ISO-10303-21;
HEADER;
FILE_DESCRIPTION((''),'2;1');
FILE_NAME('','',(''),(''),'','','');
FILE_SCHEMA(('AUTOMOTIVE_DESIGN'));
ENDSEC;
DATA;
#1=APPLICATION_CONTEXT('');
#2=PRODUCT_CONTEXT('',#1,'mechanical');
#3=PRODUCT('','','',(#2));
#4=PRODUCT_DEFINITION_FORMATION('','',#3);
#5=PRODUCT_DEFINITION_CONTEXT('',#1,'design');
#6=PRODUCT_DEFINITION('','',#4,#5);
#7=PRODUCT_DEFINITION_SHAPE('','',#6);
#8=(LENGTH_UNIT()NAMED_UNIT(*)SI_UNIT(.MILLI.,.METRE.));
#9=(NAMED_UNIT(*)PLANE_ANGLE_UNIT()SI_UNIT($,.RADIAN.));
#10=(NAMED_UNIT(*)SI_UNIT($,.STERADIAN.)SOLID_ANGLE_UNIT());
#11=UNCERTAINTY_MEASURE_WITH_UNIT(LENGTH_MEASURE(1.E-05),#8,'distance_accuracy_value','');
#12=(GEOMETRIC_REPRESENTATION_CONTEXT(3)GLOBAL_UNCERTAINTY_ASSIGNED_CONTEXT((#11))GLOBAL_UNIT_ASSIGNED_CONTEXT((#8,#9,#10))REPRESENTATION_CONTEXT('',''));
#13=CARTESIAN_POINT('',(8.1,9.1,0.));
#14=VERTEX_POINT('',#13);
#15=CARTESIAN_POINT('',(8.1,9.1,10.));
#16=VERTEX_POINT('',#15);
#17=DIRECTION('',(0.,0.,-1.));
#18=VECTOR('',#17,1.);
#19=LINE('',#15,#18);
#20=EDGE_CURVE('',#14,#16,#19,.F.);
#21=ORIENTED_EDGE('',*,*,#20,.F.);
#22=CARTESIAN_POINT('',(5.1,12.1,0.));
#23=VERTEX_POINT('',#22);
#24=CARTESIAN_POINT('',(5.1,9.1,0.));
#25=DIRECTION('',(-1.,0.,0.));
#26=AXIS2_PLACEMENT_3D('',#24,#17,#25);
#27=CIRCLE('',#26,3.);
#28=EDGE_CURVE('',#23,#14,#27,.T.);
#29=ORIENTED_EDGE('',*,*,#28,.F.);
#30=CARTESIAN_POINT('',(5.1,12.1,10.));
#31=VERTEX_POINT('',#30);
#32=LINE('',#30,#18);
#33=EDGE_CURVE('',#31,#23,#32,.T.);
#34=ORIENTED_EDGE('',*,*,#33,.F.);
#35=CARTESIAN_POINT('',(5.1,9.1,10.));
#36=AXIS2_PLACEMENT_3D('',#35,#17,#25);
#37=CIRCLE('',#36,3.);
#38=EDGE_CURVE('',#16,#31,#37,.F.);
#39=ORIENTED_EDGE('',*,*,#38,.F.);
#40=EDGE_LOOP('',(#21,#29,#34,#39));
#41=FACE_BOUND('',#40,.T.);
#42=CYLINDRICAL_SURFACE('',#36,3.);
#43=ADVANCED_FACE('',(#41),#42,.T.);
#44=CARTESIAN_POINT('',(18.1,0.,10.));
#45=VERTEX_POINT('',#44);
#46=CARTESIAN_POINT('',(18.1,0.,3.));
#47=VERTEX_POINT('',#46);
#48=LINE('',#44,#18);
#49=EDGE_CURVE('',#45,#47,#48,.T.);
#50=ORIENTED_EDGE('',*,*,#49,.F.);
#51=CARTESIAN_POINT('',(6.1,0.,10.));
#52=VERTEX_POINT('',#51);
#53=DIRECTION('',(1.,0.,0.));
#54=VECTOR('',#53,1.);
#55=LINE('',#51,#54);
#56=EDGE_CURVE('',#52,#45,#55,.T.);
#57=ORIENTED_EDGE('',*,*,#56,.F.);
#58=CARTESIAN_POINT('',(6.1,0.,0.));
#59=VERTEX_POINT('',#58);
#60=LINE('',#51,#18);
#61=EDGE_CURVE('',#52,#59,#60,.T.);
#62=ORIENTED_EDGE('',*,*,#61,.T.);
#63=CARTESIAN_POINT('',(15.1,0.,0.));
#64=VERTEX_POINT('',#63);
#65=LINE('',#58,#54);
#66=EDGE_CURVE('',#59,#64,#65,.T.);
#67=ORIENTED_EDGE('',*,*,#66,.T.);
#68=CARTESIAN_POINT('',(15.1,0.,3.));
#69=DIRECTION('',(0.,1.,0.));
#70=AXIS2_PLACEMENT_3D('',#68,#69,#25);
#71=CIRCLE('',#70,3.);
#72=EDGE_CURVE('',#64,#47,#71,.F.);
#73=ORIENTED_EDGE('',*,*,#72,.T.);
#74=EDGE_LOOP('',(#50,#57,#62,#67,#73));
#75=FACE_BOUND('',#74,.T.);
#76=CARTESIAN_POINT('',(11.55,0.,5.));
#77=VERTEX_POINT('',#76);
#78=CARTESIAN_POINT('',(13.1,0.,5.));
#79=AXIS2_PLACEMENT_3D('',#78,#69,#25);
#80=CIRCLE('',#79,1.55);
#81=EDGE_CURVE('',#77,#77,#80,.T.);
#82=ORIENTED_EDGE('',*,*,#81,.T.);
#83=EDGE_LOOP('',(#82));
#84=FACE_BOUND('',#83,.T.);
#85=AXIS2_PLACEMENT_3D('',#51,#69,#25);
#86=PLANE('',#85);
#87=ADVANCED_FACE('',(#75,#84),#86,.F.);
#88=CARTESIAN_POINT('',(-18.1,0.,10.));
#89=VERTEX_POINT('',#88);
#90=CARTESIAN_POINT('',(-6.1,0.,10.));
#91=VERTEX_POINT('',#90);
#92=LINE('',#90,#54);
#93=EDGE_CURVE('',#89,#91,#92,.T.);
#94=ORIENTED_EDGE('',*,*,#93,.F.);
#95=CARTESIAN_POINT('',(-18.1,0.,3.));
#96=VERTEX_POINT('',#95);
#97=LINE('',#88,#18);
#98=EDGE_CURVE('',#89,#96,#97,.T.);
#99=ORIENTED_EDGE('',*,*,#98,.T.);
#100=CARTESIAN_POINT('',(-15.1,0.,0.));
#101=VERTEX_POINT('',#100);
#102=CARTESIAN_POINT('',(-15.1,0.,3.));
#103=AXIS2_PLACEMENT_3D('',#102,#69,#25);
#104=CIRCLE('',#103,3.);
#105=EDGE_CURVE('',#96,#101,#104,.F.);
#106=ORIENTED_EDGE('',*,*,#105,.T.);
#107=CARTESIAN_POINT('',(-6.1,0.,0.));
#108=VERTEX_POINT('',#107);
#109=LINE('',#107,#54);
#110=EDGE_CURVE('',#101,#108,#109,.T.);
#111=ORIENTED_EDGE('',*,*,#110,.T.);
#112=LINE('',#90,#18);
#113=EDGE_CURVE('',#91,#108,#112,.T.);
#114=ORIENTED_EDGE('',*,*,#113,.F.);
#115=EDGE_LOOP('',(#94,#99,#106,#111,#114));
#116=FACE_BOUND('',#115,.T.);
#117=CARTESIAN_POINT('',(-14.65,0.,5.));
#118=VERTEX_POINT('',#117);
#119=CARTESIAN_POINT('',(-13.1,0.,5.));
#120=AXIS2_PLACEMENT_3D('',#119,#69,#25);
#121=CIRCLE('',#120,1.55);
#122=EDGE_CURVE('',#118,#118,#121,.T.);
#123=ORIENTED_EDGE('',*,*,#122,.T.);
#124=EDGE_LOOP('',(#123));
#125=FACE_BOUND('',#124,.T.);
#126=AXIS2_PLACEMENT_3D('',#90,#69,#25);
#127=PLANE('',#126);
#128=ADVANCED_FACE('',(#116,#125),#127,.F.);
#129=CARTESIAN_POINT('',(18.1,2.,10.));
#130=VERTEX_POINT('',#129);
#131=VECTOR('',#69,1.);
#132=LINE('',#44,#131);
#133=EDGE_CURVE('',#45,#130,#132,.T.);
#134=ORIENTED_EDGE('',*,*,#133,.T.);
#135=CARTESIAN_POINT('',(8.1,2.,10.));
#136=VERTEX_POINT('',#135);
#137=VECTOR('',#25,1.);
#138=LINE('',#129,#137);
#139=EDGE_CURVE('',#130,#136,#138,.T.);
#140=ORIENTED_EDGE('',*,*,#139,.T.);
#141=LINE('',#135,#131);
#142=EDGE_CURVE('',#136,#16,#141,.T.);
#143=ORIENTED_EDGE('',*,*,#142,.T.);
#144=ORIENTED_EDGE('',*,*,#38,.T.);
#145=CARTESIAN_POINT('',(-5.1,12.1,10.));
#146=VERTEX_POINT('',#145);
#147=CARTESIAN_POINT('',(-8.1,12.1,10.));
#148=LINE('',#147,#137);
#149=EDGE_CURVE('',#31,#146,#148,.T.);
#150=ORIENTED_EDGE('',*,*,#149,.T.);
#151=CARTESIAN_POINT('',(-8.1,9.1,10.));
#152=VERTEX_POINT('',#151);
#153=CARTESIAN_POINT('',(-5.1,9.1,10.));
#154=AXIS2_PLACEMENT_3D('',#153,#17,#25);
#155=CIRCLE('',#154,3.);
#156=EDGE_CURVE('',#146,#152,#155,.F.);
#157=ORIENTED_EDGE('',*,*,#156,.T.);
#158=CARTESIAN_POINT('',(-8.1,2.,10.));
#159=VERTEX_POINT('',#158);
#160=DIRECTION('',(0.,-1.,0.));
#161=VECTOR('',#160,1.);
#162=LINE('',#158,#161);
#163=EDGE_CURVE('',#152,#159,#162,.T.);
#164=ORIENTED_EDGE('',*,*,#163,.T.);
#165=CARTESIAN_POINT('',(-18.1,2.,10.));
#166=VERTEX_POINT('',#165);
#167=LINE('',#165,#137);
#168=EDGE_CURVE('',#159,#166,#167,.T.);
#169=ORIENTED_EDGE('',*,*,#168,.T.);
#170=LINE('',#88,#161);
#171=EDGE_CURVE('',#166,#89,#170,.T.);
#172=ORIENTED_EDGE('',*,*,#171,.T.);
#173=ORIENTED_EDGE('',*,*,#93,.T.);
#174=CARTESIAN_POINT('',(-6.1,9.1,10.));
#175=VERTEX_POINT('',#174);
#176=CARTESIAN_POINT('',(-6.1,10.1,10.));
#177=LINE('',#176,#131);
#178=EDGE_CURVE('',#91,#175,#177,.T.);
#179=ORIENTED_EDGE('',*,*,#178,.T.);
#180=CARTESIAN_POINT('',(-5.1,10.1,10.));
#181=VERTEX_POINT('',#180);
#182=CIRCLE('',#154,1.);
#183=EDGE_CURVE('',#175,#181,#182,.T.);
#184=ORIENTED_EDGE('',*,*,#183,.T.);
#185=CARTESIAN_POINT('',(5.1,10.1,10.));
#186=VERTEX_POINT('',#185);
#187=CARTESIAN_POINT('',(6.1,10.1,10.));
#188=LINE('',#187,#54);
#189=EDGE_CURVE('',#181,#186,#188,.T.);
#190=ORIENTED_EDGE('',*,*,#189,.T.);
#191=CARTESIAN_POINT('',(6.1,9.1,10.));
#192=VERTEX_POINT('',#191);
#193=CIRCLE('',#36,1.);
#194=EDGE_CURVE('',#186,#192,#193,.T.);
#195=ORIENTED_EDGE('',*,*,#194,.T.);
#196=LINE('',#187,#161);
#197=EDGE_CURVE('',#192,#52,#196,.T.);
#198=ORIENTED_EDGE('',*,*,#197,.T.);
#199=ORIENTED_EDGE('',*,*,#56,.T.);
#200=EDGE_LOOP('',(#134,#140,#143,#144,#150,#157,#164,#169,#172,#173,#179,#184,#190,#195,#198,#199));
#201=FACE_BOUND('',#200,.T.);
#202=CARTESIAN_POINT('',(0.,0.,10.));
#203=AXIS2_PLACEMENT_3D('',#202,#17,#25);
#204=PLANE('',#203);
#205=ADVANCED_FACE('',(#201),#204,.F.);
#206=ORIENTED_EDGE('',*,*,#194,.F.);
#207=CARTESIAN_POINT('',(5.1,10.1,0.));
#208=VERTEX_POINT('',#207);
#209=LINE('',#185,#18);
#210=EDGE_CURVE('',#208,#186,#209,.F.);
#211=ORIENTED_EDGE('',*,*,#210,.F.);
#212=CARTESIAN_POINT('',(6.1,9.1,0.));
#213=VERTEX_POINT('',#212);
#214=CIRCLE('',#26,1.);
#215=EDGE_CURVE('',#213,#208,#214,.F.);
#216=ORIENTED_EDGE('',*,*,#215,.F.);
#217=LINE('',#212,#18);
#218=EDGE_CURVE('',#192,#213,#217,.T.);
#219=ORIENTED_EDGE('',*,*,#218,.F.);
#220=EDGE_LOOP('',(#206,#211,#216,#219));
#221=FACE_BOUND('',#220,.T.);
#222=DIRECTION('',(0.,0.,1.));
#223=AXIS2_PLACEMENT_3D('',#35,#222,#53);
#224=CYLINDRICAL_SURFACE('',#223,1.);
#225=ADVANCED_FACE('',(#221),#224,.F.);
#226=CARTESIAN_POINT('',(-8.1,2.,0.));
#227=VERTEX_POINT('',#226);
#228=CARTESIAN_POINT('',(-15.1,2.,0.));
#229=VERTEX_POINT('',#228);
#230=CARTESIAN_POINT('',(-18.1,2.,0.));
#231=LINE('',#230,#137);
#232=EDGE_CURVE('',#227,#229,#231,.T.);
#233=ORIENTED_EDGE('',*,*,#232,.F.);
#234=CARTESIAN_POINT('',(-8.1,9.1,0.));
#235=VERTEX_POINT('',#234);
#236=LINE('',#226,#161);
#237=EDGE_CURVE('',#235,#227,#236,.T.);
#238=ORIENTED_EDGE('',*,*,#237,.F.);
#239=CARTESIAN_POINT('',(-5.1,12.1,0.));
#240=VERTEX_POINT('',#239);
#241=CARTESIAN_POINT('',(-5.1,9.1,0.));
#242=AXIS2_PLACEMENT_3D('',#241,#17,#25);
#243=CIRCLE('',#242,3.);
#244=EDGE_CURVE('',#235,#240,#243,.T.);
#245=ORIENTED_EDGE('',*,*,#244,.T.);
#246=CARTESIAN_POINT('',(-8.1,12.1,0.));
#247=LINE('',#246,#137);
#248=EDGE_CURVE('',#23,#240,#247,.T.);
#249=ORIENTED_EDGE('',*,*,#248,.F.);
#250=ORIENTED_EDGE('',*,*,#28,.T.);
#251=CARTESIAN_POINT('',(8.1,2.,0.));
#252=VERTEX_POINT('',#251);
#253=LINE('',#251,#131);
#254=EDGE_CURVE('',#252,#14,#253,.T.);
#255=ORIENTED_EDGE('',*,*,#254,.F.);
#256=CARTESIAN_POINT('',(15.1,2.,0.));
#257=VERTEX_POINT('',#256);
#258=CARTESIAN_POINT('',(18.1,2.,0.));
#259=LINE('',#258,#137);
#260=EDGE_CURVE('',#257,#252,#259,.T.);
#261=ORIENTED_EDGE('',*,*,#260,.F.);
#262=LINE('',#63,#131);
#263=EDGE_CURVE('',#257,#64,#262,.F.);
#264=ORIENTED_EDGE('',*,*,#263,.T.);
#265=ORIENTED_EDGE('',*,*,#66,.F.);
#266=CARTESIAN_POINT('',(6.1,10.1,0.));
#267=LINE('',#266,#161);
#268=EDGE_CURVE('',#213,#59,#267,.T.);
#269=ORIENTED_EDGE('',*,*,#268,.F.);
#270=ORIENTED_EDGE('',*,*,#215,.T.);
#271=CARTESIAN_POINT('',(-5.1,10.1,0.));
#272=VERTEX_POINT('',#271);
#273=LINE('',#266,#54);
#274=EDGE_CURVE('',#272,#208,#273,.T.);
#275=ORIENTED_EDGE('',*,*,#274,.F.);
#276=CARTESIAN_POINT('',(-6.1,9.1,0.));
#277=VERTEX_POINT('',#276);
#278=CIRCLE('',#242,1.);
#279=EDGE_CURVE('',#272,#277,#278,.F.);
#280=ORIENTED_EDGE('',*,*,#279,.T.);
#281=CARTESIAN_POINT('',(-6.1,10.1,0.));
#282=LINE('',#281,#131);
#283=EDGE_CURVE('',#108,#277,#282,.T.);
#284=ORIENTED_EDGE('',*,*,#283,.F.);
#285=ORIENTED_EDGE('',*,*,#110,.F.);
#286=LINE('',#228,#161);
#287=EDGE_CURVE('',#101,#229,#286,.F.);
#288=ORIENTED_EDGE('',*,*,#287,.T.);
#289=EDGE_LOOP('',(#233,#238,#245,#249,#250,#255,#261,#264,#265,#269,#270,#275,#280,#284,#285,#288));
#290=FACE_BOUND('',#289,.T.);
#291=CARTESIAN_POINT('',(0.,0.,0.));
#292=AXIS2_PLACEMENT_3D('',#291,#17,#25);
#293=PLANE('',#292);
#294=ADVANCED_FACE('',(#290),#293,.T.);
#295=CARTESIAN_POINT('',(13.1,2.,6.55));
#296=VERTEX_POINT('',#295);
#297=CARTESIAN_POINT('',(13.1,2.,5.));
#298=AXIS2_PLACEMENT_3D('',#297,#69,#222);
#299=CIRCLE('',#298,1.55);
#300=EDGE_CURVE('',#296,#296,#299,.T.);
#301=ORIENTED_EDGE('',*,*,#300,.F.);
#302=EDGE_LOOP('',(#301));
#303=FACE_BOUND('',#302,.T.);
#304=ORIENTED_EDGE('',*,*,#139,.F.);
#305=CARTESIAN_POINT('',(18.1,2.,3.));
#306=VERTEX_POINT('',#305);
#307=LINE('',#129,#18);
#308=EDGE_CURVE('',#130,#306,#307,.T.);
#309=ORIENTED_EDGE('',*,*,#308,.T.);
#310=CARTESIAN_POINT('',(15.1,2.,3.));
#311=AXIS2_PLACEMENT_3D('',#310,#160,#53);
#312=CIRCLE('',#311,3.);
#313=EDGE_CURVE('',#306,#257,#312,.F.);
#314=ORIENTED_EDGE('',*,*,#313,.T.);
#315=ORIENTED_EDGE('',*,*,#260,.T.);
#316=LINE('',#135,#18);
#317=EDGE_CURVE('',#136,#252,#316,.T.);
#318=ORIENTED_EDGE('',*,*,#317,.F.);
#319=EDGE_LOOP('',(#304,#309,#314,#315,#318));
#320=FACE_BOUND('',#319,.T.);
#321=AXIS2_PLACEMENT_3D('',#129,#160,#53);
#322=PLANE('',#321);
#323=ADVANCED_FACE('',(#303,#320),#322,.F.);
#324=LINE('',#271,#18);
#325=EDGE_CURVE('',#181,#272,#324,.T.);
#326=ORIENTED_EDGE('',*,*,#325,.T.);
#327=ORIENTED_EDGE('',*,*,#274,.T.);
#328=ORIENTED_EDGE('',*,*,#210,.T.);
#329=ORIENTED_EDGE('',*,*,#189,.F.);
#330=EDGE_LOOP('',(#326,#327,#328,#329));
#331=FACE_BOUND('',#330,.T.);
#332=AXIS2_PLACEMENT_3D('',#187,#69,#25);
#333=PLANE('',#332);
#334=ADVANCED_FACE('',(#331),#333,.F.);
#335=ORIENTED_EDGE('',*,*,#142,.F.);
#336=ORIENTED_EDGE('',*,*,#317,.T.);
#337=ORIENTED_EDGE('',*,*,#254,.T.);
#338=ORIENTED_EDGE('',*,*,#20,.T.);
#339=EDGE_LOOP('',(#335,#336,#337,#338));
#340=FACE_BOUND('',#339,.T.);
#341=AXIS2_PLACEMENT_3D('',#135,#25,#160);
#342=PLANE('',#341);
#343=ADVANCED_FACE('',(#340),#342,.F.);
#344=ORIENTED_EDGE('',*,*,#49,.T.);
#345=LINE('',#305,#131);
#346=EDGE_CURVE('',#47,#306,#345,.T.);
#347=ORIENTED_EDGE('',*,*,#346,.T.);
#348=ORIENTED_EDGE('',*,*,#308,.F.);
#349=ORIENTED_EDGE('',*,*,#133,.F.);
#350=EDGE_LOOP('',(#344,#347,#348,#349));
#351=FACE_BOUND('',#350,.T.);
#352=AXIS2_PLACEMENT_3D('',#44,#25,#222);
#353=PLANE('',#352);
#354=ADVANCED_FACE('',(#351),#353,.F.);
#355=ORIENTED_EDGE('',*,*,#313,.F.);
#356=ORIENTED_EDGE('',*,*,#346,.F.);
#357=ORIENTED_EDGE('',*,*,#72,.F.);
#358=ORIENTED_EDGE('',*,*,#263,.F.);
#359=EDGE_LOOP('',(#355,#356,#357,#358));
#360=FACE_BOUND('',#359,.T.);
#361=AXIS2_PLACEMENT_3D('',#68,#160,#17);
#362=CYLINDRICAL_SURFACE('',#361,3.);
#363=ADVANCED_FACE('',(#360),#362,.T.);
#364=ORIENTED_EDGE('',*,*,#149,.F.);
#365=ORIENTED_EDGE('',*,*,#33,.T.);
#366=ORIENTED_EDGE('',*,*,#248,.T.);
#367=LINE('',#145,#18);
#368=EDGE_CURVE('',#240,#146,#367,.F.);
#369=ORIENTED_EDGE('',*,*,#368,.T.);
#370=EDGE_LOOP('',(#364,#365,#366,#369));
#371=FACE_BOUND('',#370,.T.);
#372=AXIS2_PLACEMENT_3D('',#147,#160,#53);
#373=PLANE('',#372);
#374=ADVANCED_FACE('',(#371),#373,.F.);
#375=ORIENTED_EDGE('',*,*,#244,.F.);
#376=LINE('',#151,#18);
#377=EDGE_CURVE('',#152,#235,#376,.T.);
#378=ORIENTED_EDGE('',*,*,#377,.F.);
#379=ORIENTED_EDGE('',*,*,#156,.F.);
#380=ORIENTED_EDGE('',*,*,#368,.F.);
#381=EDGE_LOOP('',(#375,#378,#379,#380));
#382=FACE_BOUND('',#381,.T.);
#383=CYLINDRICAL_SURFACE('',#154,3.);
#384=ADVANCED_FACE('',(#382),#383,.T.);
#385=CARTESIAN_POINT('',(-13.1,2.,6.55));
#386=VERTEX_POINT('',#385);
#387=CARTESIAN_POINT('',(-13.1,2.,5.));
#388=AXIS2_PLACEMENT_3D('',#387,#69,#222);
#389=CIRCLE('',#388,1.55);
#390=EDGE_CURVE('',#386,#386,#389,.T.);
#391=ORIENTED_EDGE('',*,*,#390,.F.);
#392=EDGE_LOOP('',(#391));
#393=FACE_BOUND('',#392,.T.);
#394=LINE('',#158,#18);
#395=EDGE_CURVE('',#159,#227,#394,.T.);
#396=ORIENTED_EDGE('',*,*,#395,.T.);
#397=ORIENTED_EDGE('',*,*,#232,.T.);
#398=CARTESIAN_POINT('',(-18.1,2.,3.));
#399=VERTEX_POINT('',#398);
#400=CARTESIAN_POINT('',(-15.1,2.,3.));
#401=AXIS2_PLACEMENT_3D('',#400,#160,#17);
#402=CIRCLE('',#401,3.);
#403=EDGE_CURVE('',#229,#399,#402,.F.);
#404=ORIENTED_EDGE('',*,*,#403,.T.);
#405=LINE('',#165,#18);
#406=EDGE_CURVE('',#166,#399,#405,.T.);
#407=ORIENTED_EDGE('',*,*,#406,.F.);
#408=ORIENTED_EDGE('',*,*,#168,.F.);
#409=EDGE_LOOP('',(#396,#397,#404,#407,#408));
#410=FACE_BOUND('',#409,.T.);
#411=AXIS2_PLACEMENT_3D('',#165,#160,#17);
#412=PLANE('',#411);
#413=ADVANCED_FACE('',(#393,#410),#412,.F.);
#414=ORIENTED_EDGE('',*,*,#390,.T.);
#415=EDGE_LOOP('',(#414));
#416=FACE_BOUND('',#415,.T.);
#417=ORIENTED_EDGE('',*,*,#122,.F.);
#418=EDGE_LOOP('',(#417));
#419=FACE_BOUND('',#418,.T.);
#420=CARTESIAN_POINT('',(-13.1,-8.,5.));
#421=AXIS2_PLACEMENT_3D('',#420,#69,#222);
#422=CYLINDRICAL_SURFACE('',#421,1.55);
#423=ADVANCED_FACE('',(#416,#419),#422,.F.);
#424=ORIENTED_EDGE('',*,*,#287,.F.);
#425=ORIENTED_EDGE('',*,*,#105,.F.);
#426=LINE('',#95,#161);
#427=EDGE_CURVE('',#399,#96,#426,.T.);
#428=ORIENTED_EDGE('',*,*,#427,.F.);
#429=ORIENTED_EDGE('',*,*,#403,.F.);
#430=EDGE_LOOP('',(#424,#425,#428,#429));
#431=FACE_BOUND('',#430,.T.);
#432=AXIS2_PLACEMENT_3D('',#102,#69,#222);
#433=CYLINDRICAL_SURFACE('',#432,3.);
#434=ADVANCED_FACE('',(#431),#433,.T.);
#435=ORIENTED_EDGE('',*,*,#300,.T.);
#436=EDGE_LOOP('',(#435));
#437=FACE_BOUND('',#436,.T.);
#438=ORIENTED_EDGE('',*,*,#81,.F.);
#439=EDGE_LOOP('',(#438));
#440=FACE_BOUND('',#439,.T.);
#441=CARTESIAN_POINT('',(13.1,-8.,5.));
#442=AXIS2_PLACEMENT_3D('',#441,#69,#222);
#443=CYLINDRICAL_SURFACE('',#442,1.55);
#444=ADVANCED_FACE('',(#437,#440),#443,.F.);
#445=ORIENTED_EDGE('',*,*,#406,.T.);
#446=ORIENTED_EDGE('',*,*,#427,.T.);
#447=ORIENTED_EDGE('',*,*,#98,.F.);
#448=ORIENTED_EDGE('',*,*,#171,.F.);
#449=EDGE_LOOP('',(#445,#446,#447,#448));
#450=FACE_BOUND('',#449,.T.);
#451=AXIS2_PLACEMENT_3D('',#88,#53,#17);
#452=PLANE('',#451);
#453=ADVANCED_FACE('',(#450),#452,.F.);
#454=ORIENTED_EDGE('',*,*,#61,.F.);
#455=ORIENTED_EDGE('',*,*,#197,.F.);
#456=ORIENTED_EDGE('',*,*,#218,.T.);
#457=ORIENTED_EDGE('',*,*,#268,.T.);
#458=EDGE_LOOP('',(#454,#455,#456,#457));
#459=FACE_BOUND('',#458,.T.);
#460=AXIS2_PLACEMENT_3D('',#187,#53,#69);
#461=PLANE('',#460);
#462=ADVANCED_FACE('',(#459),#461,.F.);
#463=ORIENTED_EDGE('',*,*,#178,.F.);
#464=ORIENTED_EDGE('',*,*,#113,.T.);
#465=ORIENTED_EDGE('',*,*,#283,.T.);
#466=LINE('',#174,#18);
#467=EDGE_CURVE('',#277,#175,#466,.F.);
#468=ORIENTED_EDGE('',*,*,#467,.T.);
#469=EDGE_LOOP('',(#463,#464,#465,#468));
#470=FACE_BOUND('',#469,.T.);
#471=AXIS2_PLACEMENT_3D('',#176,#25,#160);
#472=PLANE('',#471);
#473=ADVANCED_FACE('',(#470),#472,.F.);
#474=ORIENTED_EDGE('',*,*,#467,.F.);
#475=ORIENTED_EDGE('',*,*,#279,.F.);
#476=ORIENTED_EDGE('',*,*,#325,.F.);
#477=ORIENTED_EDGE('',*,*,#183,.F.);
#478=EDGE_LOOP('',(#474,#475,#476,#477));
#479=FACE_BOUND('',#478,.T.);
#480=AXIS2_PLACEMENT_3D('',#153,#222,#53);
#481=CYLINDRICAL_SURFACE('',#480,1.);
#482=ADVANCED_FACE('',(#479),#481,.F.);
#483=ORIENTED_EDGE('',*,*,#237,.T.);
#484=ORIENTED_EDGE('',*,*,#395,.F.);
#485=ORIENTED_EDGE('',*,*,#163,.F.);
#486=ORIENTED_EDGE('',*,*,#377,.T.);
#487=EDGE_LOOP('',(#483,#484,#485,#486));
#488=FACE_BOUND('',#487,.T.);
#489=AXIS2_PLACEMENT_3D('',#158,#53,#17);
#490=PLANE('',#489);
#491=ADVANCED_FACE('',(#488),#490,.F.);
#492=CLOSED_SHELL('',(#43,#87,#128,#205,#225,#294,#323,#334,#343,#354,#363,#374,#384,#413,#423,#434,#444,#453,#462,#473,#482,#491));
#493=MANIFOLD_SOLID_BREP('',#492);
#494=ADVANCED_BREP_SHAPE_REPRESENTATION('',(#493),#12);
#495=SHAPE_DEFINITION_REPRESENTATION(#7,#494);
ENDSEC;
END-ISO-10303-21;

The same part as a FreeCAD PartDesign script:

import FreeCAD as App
import Part
import Sketcher

V = App.Vector
Q = App.Units.Quantity


def edges_at(feature, points):
    """Names of the edges that pass closest to the given points."""
    edges = feature.Shape.Edges
    near = lambda p: min(range(len(edges)), key=lambda i: edges[i].distToShape(Part.Vertex(*p))[0])
    return sorted({f"Edge{near(p) + 1}" for p in points})


def add_polygon(sketch, points):
    """Adds a closed chain of lines whose ends are joined by coincident constraints."""
    first, n = sketch.GeometryCount, len(points)
    for a, b in zip(points, points[1:] + points[:1]):
        sketch.addGeometry(Part.LineSegment(App.Vector(*a, 0), App.Vector(*b, 0)), False)
    for i in range(n):
        sketch.addConstraint(Sketcher.Constraint("Coincident", first + i, 2, first + (i + 1) % n, 1))

doc = App.newDocument("Part")
body = doc.addObject("PartDesign::Body", "Body")

# Sketch on XY plane
sketch1 = body.newObject("Sketcher::SketchObject", "Sketch")
sketch1.AttachmentSupport = (doc.getObject("XY_Plane"), [""])
sketch1.MapMode = "FlatFace"
add_polygon(sketch1, [(-6.1, 10.1), (6.1, 10.1), (6.1, 0), (18.1, 0), (18.1, 2), (8.1, 2), (8.1, 12.1), (-8.1, 12.1), (-8.1, 2), (-18.1, 2), (-18.1, 0), (-6.1, 0)])  # lines 0-11
sketch1.addConstraint([
    Sketcher.Constraint("Horizontal", 0),
    Sketcher.Constraint("Vertical", 1),
    Sketcher.Constraint("Horizontal", 2),
    Sketcher.Constraint("Vertical", 3),
    Sketcher.Constraint("Horizontal", 4),
    Sketcher.Constraint("Vertical", 5),
    Sketcher.Constraint("Horizontal", 6),
    Sketcher.Constraint("Vertical", 7),
    Sketcher.Constraint("Horizontal", 8),
    Sketcher.Constraint("Vertical", 9),
    Sketcher.Constraint("Horizontal", 10),
    Sketcher.Constraint("Vertical", 11),
    Sketcher.Constraint("Symmetric", 2, 2, 9, 2, -1, 1),
    Sketcher.Constraint("Symmetric", 4, 2, 7, 2, -2),
    Sketcher.Constraint("Symmetric", 1, 2, 10, 2, -2),
    Sketcher.Constraint("Equal", 1, 5),
    Sketcher.Constraint("DistanceX", 2, 1, 2, 2, Q("12 mm")),
    Sketcher.Constraint("DistanceX", 4, 2, 4, 1, Q("10 mm")),
    Sketcher.Constraint("DistanceY", 3, 1, 3, 2, Q("2 mm")),
    Sketcher.Constraint("DistanceX", 0, 1, 0, 2, Q("12.2 mm")),
    Sketcher.Constraint("DistanceY", 1, 2, 1, 1, Q("10.1 mm")),
])
pad1 = body.newObject("PartDesign::Pad", "Pad")
pad1.Profile = sketch1
pad1.Length = 10

# Sketch on XZ plane
sketch2 = body.newObject("Sketcher::SketchObject", "Sketch001")
sketch2.AttachmentSupport = (doc.getObject("XZ_Plane"), [""])
sketch2.MapMode = "FlatFace"
sketch2.AttachmentOffset = App.Placement(V(0, 0, -2), App.Rotation())
sketch2.addGeometry(Part.Circle(V(-13.1, 5, 0), V(0, 0, 1), 1.6), False)
sketch2.addConstraint([
    Sketcher.Constraint("Diameter", 0, Q("3.1 mm")),
    Sketcher.Constraint("DistanceY", -1, 1, 0, 3, Q("5 mm")),
    Sketcher.Constraint("DistanceX", 0, 3, -1, 1, Q("13.1 mm")),
])
pocket1 = body.newObject("PartDesign::Pocket", "Pocket")
pocket1.Profile = sketch2
pocket1.Length = 10
pocket1.Reversed = True

# Sketch on XZ plane
sketch3 = body.newObject("Sketcher::SketchObject", "Sketch002")
sketch3.AttachmentSupport = (doc.getObject("XZ_Plane"), [""])
sketch3.MapMode = "FlatFace"
sketch3.AttachmentOffset = App.Placement(V(0, 0, -2), App.Rotation())
sketch3.addGeometry(Part.Circle(V(13.1, 5, 0), V(0, 0, 1), 1.6), False)
sketch3.addConstraint([
    Sketcher.Constraint("Diameter", 0, Q("3.1 mm")),
    Sketcher.Constraint("DistanceY", -1, 1, 0, 3, Q("5 mm")),
    Sketcher.Constraint("DistanceX", -1, 1, 0, 3, Q("13.1 mm")),
])
pocket2 = body.newObject("PartDesign::Pocket", "Pocket001")
pocket2.Profile = sketch3
pocket2.Length = 10
pocket2.Reversed = True
doc.recompute()

fillet = body.newObject("PartDesign::Fillet", "Fillet")
fillet.Base = (pocket2, edges_at(pocket2, [(-18.1, 1, 0), (18.1, 1, 0)]))
fillet.Radius = 3
doc.recompute()

fillet2 = body.newObject("PartDesign::Fillet", "Fillet001")
fillet2.Base = (fillet, edges_at(fillet, [(-8.1, 12.1, 5), (8.1, 12.1, 5)]))
fillet2.Radius = 3
doc.recompute()

fillet3 = body.newObject("PartDesign::Fillet", "Fillet002")
fillet3.Base = (fillet2, edges_at(fillet2, [(6.1, 10.1, 5), (-6.1, 10.1, 5)]))
fillet3.Radius = 1

doc.recompute()
